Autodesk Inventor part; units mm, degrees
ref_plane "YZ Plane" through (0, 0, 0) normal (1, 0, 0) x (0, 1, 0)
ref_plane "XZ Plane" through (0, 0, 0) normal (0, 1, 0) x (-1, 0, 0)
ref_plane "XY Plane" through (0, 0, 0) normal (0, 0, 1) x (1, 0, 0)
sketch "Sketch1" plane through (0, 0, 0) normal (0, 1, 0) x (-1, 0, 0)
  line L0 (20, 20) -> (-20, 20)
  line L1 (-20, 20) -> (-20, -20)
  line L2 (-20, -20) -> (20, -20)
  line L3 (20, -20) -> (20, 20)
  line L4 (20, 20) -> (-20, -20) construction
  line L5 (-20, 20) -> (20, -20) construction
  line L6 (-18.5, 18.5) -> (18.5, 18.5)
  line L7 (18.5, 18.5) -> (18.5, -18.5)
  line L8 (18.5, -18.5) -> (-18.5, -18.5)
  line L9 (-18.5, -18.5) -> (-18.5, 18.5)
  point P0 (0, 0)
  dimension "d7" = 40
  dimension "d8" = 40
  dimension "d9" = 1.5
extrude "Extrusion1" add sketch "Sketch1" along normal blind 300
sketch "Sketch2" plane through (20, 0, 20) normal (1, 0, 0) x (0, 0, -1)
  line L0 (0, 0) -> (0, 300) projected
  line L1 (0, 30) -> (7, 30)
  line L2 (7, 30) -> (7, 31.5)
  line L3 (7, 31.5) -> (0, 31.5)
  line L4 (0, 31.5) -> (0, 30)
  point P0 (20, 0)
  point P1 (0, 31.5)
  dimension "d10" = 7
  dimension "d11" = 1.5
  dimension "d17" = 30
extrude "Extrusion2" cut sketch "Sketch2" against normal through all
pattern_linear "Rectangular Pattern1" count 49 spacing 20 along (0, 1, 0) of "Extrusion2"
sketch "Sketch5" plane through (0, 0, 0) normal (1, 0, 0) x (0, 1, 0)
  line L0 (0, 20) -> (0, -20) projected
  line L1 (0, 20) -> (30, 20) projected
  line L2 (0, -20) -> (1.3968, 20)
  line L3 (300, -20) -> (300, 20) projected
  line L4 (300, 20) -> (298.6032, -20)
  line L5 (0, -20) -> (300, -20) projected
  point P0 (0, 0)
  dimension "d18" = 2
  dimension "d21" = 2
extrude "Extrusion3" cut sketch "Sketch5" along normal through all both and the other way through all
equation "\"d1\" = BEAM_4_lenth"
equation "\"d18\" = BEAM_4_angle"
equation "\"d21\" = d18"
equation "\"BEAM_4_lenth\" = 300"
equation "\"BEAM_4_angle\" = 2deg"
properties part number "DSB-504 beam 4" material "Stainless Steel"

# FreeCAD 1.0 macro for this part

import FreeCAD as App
import Part
import Sketcher
Q = App.Units.Quantity

doc = App.newDocument("Part")
body = doc.addObject("PartDesign::Body", "Body")

# Sketch on XZ plane
sketch1 = body.newObject("Sketcher::SketchObject", "Sketch")
sketch1.AttachmentSupport = (doc.getObject("XZ_Plane"), [""])
sketch1.MapMode = "FlatFace"
sketch1.addGeometry([
    Part.LineSegment(App.Vector(-20, -20, 0), App.Vector(-20, 20, 0)),  # 0
    Part.LineSegment(App.Vector(-20, 20, 0), App.Vector(20, 20, 0)),  # 1
    Part.LineSegment(App.Vector(20, 20, 0), App.Vector(20, -20, 0)),  # 2
    Part.LineSegment(App.Vector(20, -20, 0), App.Vector(-20, -20, 0)),  # 3
    Part.LineSegment(App.Vector(18.5, -18.5, 0), App.Vector(18.5, 18.5, 0)),  # 4
    Part.LineSegment(App.Vector(18.5, 18.5, 0), App.Vector(-18.5, 18.5, 0)),  # 5
    Part.LineSegment(App.Vector(-18.5, 18.5, 0), App.Vector(-18.5, -18.5, 0)),  # 6
    Part.LineSegment(App.Vector(-18.5, -18.5, 0), App.Vector(18.5, -18.5, 0)),  # 7
], False)
sketch1.addConstraint([
    Sketcher.Constraint("Coincident", 0, 2, 1, 1),
    Sketcher.Constraint("Coincident", 1, 2, 2, 1),
    Sketcher.Constraint("Coincident", 2, 2, 3, 1),
    Sketcher.Constraint("Coincident", 3, 2, 0, 1),
    Sketcher.Constraint("Coincident", 4, 2, 5, 1),
    Sketcher.Constraint("Coincident", 5, 2, 6, 1),
    Sketcher.Constraint("Coincident", 6, 2, 7, 1),
    Sketcher.Constraint("Coincident", 7, 2, 4, 1),
    Sketcher.Constraint("Vertical", 0),
    Sketcher.Constraint("Horizontal", 1),
    Sketcher.Constraint("Vertical", 2),
    Sketcher.Constraint("Horizontal", 3),
    Sketcher.Constraint("Vertical", 4),
    Sketcher.Constraint("Horizontal", 5),
    Sketcher.Constraint("Vertical", 6),
    Sketcher.Constraint("Horizontal", 7),
    Sketcher.Constraint("Symmetric", 0, 2, 2, 2, -1, 1),
    Sketcher.Constraint("Symmetric", 4, 2, 6, 2, -1, 1),
    Sketcher.Constraint("Equal", 3, 0),
    Sketcher.Constraint("Equal", 7, 4),
    Sketcher.Constraint("DistanceX", 1, 1, 1, 2, Q("40 mm")),
    Sketcher.Constraint("DistanceX", 4, 2, 1, 2, Q("1.5 mm")),
])
pad1 = body.newObject("PartDesign::Pad", "Pad")
pad1.Profile = sketch1
pad1.Length = 300
pad1.Reversed = True

# Sketch on YZ plane
sketch2 = body.newObject("Sketcher::SketchObject", "Sketch001")
sketch2.AttachmentSupport = (doc.getObject("YZ_Plane"), [""])
sketch2.MapMode = "FlatFace"
sketch2.AttachmentOffset = App.Placement(App.Vector(0, 0, 20), App.Rotation())
sketch2.addGeometry([
    Part.LineSegment(App.Vector(31.5, 20, 0), App.Vector(30, 20, 0)),
    Part.LineSegment(App.Vector(30, 20, 0), App.Vector(30, 13, 0)),
    Part.LineSegment(App.Vector(30, 13, 0), App.Vector(31.5, 13, 0)),
    Part.LineSegment(App.Vector(31.5, 13, 0), App.Vector(31.5, 20, 0)),
], False)
sketch2.addConstraint([
    Sketcher.Constraint("Coincident", 0, 2, 1, 1),
    Sketcher.Constraint("Coincident", 1, 2, 2, 1),
    Sketcher.Constraint("Coincident", 2, 2, 3, 1),
    Sketcher.Constraint("Coincident", 3, 2, 0, 1),
    Sketcher.Constraint("Horizontal", 0),
    Sketcher.Constraint("Vertical", 1),
    Sketcher.Constraint("Horizontal", 2),
    Sketcher.Constraint("Vertical", 3),
    Sketcher.Constraint("DistanceY", 1, 2, 1, 1, Q("7 mm")),
    Sketcher.Constraint("DistanceX", 0, 2, 0, 1, Q("1.5 mm")),
    Sketcher.Constraint("DistanceX", -1, 1, 0, 2, Q("30 mm")),
    Sketcher.Constraint("DistanceY", -1, 1, 0, 2, Q("20 mm")),
])
pocket1 = body.newObject("PartDesign::Pocket", "Pocket")
pocket1.Profile = sketch2
pocket1.Type = "ThroughAll"
doc.recompute()

linearpattern = body.newObject("PartDesign::LinearPattern", "LinearPattern")
linearpattern.Originals = [pocket1]
linearpattern.Direction = (doc.getObject("Y_Axis"), [""])
linearpattern.Mode = "offset"
linearpattern.Offset = 20
linearpattern.Occurrences = 49
body.Tip = linearpattern

# Sketch on YZ plane
sketch3 = body.newObject("Sketcher::SketchObject", "Sketch002")
sketch3.AttachmentSupport = (doc.getObject("YZ_Plane"), [""])
sketch3.MapMode = "FlatFace"
sketch3.addGeometry([
    Part.LineSegment(App.Vector(1.3968, 20, 0), App.Vector(0, 20, 0)),  # 0
    Part.LineSegment(App.Vector(0, 20, 0), App.Vector(0, -20, 0)),  # 1
    Part.LineSegment(App.Vector(0, -20, 0), App.Vector(1.3968, 20, 0)),  # 2
    Part.LineSegment(App.Vector(300, 20, 0), App.Vector(298.6032, -20, 0)),  # 3
    Part.LineSegment(App.Vector(298.6032, -20, 0), App.Vector(300, -20, 0)),  # 4
    Part.LineSegment(App.Vector(300, -20, 0), App.Vector(300, 20, 0)),  # 5
], False)
sketch3.addConstraint([
    Sketcher.Constraint("Coincident", 0, 2, 1, 1),
    Sketcher.Constraint("Coincident", 1, 2, 2, 1),
    Sketcher.Constraint("Coincident", 2, 2, 0, 1),
    Sketcher.Constraint("Coincident", 3, 2, 4, 1),
    Sketcher.Constraint("Coincident", 4, 2, 5, 1),
    Sketcher.Constraint("Coincident", 5, 2, 3, 1),
    Sketcher.Constraint("Horizontal", 0),
    Sketcher.Constraint("Vertical", 1),
    Sketcher.Constraint("Horizontal", 4),
    Sketcher.Constraint("Vertical", 5),
    Sketcher.Constraint("Symmetric", 0, 2, 1, 2, -1, 1),
    Sketcher.Constraint("Parallel", 2, 3),
    Sketcher.Constraint("Horizontal", 1, 2, 3, 2),
    Sketcher.Constraint("Horizontal", 2, 2, 5, 2),
    Sketcher.Constraint("DistanceY", 1, 2, 1, 1, Q("40 mm")),
    Sketcher.Constraint("Angle", 2, Q("88 deg")),
    Sketcher.Constraint("DistanceX", -1, 1, 4, 2, Q("300 mm")),
])
pocket2 = body.newObject("PartDesign::Pocket", "Pocket001")
pocket2.Profile = sketch3
pocket2.Type = "ThroughAll"
pocket2.Midplane = True

doc.recompute()
